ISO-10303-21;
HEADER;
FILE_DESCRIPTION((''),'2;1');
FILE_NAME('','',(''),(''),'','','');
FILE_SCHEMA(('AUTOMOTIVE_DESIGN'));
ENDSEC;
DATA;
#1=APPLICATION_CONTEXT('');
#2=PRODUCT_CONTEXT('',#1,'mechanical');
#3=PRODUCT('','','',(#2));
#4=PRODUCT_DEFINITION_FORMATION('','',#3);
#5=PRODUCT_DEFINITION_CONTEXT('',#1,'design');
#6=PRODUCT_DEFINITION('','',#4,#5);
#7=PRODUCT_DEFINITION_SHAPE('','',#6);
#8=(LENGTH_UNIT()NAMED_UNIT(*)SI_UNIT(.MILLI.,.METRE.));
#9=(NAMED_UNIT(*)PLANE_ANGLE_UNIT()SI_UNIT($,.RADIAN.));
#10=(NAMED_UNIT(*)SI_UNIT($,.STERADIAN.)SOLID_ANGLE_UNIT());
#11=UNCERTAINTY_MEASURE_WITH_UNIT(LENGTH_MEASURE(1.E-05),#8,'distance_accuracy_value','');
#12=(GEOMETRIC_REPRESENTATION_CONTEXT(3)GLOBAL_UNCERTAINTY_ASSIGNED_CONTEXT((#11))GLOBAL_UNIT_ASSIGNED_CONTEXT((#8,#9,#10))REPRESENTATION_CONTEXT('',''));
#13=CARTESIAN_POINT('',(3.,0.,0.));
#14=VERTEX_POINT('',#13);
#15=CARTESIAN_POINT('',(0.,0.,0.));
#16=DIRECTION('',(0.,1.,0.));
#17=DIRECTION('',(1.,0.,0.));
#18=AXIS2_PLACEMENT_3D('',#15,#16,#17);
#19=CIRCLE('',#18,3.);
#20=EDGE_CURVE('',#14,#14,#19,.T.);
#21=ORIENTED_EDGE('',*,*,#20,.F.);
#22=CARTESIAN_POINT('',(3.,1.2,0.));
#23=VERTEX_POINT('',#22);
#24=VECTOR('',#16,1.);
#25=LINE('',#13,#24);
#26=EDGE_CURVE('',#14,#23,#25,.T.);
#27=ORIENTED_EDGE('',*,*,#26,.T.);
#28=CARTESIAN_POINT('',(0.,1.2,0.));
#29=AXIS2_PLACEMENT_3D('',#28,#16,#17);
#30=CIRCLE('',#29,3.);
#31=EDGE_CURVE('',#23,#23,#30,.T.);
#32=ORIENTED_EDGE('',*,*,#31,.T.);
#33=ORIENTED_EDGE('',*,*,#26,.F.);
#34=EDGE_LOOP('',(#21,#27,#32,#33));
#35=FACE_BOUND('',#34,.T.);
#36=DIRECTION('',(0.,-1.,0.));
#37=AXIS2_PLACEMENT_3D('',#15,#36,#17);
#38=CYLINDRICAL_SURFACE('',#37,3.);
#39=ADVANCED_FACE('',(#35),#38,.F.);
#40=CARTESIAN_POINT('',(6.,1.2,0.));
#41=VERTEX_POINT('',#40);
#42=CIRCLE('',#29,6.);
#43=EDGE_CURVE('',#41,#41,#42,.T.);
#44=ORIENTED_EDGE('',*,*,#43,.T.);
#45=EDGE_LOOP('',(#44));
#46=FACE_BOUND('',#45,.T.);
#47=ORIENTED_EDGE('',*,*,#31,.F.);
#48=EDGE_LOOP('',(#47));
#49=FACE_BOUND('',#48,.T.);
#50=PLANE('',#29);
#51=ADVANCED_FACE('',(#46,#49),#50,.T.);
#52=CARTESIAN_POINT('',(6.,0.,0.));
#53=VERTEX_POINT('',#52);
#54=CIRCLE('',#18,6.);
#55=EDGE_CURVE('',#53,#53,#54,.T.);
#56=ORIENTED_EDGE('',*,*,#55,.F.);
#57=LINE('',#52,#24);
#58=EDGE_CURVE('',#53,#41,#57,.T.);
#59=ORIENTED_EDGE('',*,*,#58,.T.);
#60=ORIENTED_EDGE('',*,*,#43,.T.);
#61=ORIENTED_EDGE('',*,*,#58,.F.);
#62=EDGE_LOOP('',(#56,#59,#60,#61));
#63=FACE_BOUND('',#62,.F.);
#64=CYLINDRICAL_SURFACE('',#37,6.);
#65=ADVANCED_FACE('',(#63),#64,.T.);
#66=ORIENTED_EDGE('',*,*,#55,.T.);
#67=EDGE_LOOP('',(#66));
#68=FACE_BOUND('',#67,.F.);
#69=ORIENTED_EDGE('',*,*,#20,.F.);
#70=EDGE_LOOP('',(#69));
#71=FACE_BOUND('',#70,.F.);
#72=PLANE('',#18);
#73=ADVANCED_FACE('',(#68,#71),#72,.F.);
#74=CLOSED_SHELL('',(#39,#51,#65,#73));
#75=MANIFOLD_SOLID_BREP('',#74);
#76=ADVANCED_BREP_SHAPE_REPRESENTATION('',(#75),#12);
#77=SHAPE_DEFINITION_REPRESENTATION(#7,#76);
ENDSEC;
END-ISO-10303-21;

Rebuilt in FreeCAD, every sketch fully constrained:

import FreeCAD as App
import Part
import Sketcher
from FreeCAD import Vector
Q = App.Units.Quantity

doc = App.newDocument("Part")
body = doc.addObject("PartDesign::Body", "Body")

# Sketch on XZ plane
sketch1 = body.newObject("Sketcher::SketchObject", "Sketch")
sketch1.AttachmentSupport = (doc.getObject("XZ_Plane"), [""])
sketch1.MapMode = "FlatFace"
sketch1.addGeometry([
    Part.Circle(Vector(0, 0, 0), Vector(0, 0, 1), 6),
    Part.Circle(Vector(0, 0, 0), Vector(0, 0, 1), 3),
], False)
sketch1.addConstraint([
    Sketcher.Constraint("Coincident", 0, 3, -1, 1),
    Sketcher.Constraint("Coincident", 1, 3, -1, 1),
    Sketcher.Constraint("Diameter", 0, Q("12 mm")),
    Sketcher.Constraint("Diameter", 1, Q("6 mm")),
])
pad1 = body.newObject("PartDesign::Pad", "Pad")
pad1.Profile = sketch1
pad1.Length = 1.2
pad1.Reversed = True

doc.recompute()
